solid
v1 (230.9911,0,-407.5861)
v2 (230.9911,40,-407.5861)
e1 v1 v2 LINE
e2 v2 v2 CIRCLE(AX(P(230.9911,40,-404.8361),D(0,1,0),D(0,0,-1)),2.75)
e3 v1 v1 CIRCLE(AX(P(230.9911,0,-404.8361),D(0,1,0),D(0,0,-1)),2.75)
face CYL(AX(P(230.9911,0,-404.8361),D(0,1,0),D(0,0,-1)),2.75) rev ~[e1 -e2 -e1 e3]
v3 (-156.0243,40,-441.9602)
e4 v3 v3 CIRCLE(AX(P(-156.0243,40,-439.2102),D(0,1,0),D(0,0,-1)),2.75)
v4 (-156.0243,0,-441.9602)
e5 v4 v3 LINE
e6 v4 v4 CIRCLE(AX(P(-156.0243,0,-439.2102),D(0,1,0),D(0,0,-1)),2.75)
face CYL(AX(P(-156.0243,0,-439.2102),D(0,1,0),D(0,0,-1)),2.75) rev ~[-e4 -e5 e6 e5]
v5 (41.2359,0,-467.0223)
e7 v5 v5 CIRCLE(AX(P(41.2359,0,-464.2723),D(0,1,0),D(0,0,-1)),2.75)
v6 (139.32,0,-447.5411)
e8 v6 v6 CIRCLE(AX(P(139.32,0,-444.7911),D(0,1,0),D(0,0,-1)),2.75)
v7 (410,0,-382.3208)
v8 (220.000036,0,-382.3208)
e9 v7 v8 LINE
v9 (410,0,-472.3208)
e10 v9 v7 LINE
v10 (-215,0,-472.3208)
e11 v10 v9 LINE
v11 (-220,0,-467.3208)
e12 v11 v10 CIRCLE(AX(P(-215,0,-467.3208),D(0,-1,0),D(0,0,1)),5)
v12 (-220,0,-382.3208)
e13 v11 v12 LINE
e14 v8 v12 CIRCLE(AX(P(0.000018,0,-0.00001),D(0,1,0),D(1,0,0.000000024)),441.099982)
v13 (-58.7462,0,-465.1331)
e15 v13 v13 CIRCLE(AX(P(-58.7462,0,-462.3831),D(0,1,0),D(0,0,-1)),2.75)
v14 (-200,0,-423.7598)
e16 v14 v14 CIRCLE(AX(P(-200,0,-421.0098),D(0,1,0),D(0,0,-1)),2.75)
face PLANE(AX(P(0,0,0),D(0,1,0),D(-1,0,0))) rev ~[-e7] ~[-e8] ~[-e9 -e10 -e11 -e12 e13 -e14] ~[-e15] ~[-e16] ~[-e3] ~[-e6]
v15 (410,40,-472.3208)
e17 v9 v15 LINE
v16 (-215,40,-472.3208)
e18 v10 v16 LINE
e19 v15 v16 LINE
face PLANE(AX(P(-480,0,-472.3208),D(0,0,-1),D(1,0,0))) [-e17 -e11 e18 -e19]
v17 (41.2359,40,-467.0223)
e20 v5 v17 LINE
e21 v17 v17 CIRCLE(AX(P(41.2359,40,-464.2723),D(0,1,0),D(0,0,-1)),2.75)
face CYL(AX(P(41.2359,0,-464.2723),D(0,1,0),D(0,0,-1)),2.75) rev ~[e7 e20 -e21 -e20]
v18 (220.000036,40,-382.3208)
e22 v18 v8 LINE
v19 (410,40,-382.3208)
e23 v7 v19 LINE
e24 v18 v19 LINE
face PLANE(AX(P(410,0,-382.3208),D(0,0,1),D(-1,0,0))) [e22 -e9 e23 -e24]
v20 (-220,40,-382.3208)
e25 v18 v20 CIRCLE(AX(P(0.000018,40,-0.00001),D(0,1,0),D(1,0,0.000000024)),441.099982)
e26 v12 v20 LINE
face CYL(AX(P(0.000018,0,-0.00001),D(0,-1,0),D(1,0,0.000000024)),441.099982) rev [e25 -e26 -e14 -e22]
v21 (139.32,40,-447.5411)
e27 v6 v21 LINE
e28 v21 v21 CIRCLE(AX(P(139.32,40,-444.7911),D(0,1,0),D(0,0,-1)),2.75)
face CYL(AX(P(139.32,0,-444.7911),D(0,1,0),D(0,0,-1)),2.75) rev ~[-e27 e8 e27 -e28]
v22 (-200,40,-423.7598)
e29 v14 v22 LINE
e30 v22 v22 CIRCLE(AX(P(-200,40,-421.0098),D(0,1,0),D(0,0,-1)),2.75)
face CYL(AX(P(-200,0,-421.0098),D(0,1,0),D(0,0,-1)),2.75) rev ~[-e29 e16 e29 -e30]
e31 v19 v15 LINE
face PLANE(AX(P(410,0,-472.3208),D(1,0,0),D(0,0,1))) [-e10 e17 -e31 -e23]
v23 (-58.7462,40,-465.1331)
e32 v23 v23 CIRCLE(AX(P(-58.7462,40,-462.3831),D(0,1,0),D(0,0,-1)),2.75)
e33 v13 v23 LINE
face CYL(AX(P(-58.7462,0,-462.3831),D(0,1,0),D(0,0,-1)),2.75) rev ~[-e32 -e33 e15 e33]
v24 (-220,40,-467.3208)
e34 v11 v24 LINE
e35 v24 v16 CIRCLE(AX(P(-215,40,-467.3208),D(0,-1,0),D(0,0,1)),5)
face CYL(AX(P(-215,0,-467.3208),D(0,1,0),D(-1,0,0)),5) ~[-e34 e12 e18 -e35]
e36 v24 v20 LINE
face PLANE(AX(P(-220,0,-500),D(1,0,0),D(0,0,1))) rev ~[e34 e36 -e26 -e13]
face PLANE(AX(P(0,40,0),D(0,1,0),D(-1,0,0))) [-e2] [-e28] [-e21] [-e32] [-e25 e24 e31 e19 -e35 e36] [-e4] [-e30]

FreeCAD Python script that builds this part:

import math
import FreeCAD as App
import Part
import Sketcher
from FreeCAD import Vector


def edges_at(feature, points):
    """Names of the edges that pass closest to the given points."""
    edges = feature.Shape.Edges
    near = lambda p: min(range(len(edges)), key=lambda i: edges[i].distToShape(Part.Vertex(*p))[0])
    return sorted({f"Edge{near(p) + 1}" for p in points})

doc = App.newDocument("Part")
params = doc.addObject("Spreadsheet::Sheet", "Params")
for row, (alias, value) in enumerate([
    ("sketch1_radius", "441.1 mm"),
    ("sketch1_width", "720 mm"),
    ("sketch1_height", "400 mm"),
    ("pad1_length", "40 mm"),
    ("sketch2_diameter", "5.5 mm"),
    ("hole_diameter", "5.5 mm"),
    ("sketch3_width", "890 mm"),
    ("sketch3_height", "90 mm"),
    ("fillet_radius", "5 mm"),
], start=1):
    params.set(f"A{row}", alias)
    params.set(f"B{row}", "=" + value)
    params.setAlias(f"B{row}", alias)

body = doc.addObject("PartDesign::Body", "Body")

sketch1 = doc.addObject("Sketcher::SketchObject", "Sketch")
body.addObject(sketch1)
sketch1.AttachmentSupport = (doc.XZ_Plane, [""])
sketch1.MapMode = "FlatFace"
sketch1.addGeometry([
    Part.ArcOfCircle(Part.Circle(Vector(0, 0, 0), Vector(0, 0, 1), 441.1), math.radians(-119.917542), math.radians(0)),
    Part.LineSegment(Vector(441.1, 0, 0), Vector(441.1, 400, 0)),
    Part.LineSegment(Vector(441.1, 400, 0), Vector(500, 400, 0)),
    Part.LineSegment(Vector(500, 400, 0), Vector(500, -500, 0)),
    Part.LineSegment(Vector(500, -500, 0), Vector(-220, -500, 0)),
    Part.LineSegment(Vector(-220, -500, 0), Vector(-220, -382.3208, 0)),
], False)
sketch1.addConstraint([
    Sketcher.Constraint("Tangent", 0, 2, 1, 1),
    Sketcher.Constraint("Coincident", 1, 2, 2, 1),
    Sketcher.Constraint("Coincident", 2, 2, 3, 1),
    Sketcher.Constraint("Coincident", 3, 2, 4, 1),
    Sketcher.Constraint("Coincident", 4, 2, 5, 1),
    Sketcher.Constraint("Coincident", 5, 2, 0, 1),
    Sketcher.Constraint("Vertical", 1),
    Sketcher.Constraint("Horizontal", 2),
    Sketcher.Constraint("Vertical", 3),
    Sketcher.Constraint("Horizontal", 4),
    Sketcher.Constraint("Vertical", 5),
    Sketcher.Constraint("Coincident", 0, 3, -1, 1),
    Sketcher.Constraint("Radius", 0, 441.1),
    Sketcher.Constraint("DistanceX", 4, 2, 4, 1, 720.0),
    Sketcher.Constraint("DistanceY", 1, 1, 1, 2, 400.0),
    Sketcher.Constraint("DistanceX", -1, 1, 2, 2, 500.0),
    Sketcher.Constraint("DistanceY", 3, 2, -1, 1, 500.0),
])
sketch1.setExpression("Constraints[12]", "Params.sketch1_radius")
sketch1.setExpression("Constraints[13]", "Params.sketch1_width")
sketch1.setExpression("Constraints[14]", "Params.sketch1_height")
pad1 = doc.addObject("PartDesign::Pad", "Pad")
body.addObject(pad1)
pad1.Profile = sketch1
pad1.setExpression("Length", "Params.pad1_length")
pad1.Reversed = True

sketch2 = doc.addObject("Sketcher::SketchObject", "Sketch001")
body.addObject(sketch2)
sketch2.AttachmentSupport = (doc.XZ_Plane, [""])
sketch2.MapMode = "FlatFace"
sketch2.addGeometry([
    Part.Circle(Vector(-200, -421.0098, 0), Vector(0, 0, 1), 2.75),
    Part.Circle(Vector(-156.0243, -439.2102, 0), Vector(0, 0, 1), 2.75),
    Part.Circle(Vector(-58.7462, -462.3831, 0), Vector(0, 0, 1), 2.75),
    Part.Circle(Vector(41.2359, -464.2723, 0), Vector(0, 0, 1), 2.75),
    Part.Circle(Vector(139.32, -444.7911, 0), Vector(0, 0, 1), 2.75),
    Part.Circle(Vector(230.9911, -404.8361, 0), Vector(0, 0, 1), 2.75),
    Part.Circle(Vector(289.0138, -365.6778, 0), Vector(0, 0, 1), 2.75),
    Part.Circle(Vector(326.5218, -332.615, 0), Vector(0, 0, 1), 2.75),
    Part.Circle(Vector(360.2723, -295.7246, 0), Vector(0, 0, 1), 2.75),
    Part.Circle(Vector(389.8771, -255.4312, 0), Vector(0, 0, 1), 2.75),
    Part.Circle(Vector(423.7332, -194.1633, 0), Vector(0, 0, 1), 2.75),
    Part.Circle(Vector(445.1648, -138.1214, 0), Vector(0, 0, 1), 2.75),
    Part.Circle(Vector(464.3817, -39.9852, 0), Vector(0, 0, 1), 2.75),
    Part.Circle(Vector(466.1, 60, 0), Vector(0, 0, 1), 2.75),
    Part.Circle(Vector(466.1, 160, 0), Vector(0, 0, 1), 2.75),
    Part.Circle(Vector(466.1, 260, 0), Vector(0, 0, 1), 2.75),
    Part.Circle(Vector(466.1, 360, 0), Vector(0, 0, 1), 2.75),
], False)
sketch2.addConstraint([
    Sketcher.Constraint("Equal", 0, 1),
    Sketcher.Constraint("Equal", 1, 2),
    Sketcher.Constraint("Equal", 2, 3),
    Sketcher.Constraint("Equal", 3, 4),
    Sketcher.Constraint("Equal", 4, 5),
    Sketcher.Constraint("Equal", 5, 6),
    Sketcher.Constraint("Equal", 6, 7),
    Sketcher.Constraint("Equal", 7, 8),
    Sketcher.Constraint("Equal", 8, 9),
    Sketcher.Constraint("Equal", 9, 10),
    Sketcher.Constraint("Equal", 10, 11),
    Sketcher.Constraint("Equal", 11, 12),
    Sketcher.Constraint("Equal", 12, 13),
    Sketcher.Constraint("Equal", 13, 14),
    Sketcher.Constraint("Equal", 14, 15),
    Sketcher.Constraint("Equal", 15, 16),
    Sketcher.Constraint("Vertical", 13, 3, 14, 3),
    Sketcher.Constraint("Vertical", 14, 3, 15, 3),
    Sketcher.Constraint("Vertical", 15, 3, 16, 3),
    Sketcher.Constraint("Diameter", 0, 5.5),
    Sketcher.Constraint("DistanceX", 0, 3, -1, 1, 200.0),
    Sketcher.Constraint("DistanceY", -1, 1, 13, 3, 60.0),
    Sketcher.Constraint("DistanceY", -1, 1, 14, 3, 160.0),
    Sketcher.Constraint("DistanceY", -1, 1, 15, 3, 260.0),
    Sketcher.Constraint("DistanceY", -1, 1, 16, 3, 360.0),
    Sketcher.Constraint("DistanceX", -1, 1, 13, 3, 466.1),
    Sketcher.Constraint("DistanceX", -1, 1, 4, 3, 139.32),
    Sketcher.Constraint("DistanceX", 2, 3, 6, 3, 347.76),
    Sketcher.Constraint("DistanceY", 4, 3, 9, 3, 189.36),
    Sketcher.Constraint("DistanceX", 7, 3, 12, 3, 137.86),
    Sketcher.Constraint("DistanceY", 2, 3, -1, 1, 462.383),
    Sketcher.Constraint("DistanceX", -1, 1, 3, 3, 41.236),
    Sketcher.Constraint("DistanceY", 4, 3, -1, 1, 444.791),
    Sketcher.Constraint("DistanceX", -1, 1, 5, 3, 230.991),
    Sketcher.Constraint("DistanceY", 5, 3, -1, 1, 404.836),
    Sketcher.Constraint("DistanceY", 7, 3, -1, 1, 332.615),
    Sketcher.Constraint("DistanceX", -1, 1, 9, 3, 389.877),
    Sketcher.Constraint("DistanceX", 1, 3, 2, 3, 97.278),
    Sketcher.Constraint("DistanceY", 2, 3, 1, 3, 23.173),
    Sketcher.Constraint("DistanceX", 2, 3, 3, 3, 99.982),
    Sketcher.Constraint("DistanceY", 3, 3, 1, 3, 25.062),
    Sketcher.Constraint("DistanceX", 6, 3, 7, 3, 37.508),
    Sketcher.Constraint("DistanceX", 9, 3, 10, 3, 33.856),
    Sketcher.Constraint("DistanceY", 9, 3, 10, 3, 61.268),
    Sketcher.Constraint("DistanceX", 8, 3, 10, 3, 63.461),
    Sketcher.Constraint("DistanceY", 10, 3, 11, 3, 56.042),
    Sketcher.Constraint("DistanceX", 7, 3, 11, 3, 118.643),
    Sketcher.Constraint("DistanceY", 10, 3, 12, 3, 154.178),
    Sketcher.Constraint("DistanceY", 0, 3, -1, 1, 421.0098),
    Sketcher.Constraint("DistanceY", 6, 3, -1, 1, 365.6778),
    Sketcher.Constraint("DistanceY", 8, 3, -1, 1, 295.7246),
])
sketch2.setExpression("Constraints[19]", "Params.sketch2_diameter")
doc.recompute()
hole = doc.addObject("PartDesign::Hole", "Hole")
body.addObject(hole)
hole.Profile = sketch2
hole.ThreadType = "None"
hole.setExpression("Diameter", "Params.hole_diameter")
hole.DepthType = "ThroughAll"

sketch3 = doc.addObject("Sketcher::SketchObject", "Sketch002")
body.addObject(sketch3)
sketch3.AttachmentSupport = (doc.XZ_Plane, [""])
sketch3.MapMode = "FlatFace"
sketch3.addGeometry([
    Part.LineSegment(Vector(927.6453, 629.3425, 0), Vector(-944.7434, 629.3425, 0)),
    Part.LineSegment(Vector(-944.7434, 629.3425, 0), Vector(-944.7434, -768.0218, 0)),
    Part.LineSegment(Vector(-944.7434, -768.0218, 0), Vector(927.6453, -768.0218, 0)),
    Part.LineSegment(Vector(927.6453, -768.0218, 0), Vector(927.6453, 629.3425, 0)),
    Part.LineSegment(Vector(410, -472.3208, 0), Vector(-480, -472.3208, 0)),
    Part.LineSegment(Vector(-480, -472.3208, 0), Vector(-480, -382.3208, 0)),
    Part.LineSegment(Vector(-480, -382.3208, 0), Vector(410, -382.3208, 0)),
    Part.LineSegment(Vector(410, -382.3208, 0), Vector(410, -472.3208, 0)),
], False)
sketch3.addConstraint([
    Sketcher.Constraint("Coincident", 0, 2, 1, 1),
    Sketcher.Constraint("Coincident", 1, 2, 2, 1),
    Sketcher.Constraint("Coincident", 2, 2, 3, 1),
    Sketcher.Constraint("Coincident", 3, 2, 0, 1),
    Sketcher.Constraint("Coincident", 4, 2, 5, 1),
    Sketcher.Constraint("Coincident", 5, 2, 6, 1),
    Sketcher.Constraint("Coincident", 6, 2, 7, 1),
    Sketcher.Constraint("Coincident", 7, 2, 4, 1),
    Sketcher.Constraint("Horizontal", 0),
    Sketcher.Constraint("Vertical", 1),
    Sketcher.Constraint("Horizontal", 2),
    Sketcher.Constraint("Vertical", 3),
    Sketcher.Constraint("Horizontal", 4),
    Sketcher.Constraint("Vertical", 5),
    Sketcher.Constraint("Horizontal", 6),
    Sketcher.Constraint("Vertical", 7),
    Sketcher.Constraint("DistanceX", 4, 2, 4, 1, 890.0),
    Sketcher.Constraint("DistanceY", 5, 1, 5, 2, 90.0),
    Sketcher.Constraint("DistanceX", 4, 2, -1, 1, 480.0),
    Sketcher.Constraint("DistanceX", 0, 2, 0, 1, 1872.3887),
    Sketcher.Constraint("DistanceY", 1, 2, 1, 1, 1397.3643),
    Sketcher.Constraint("DistanceY", 1, 2, 4, 2, 295.701),
    Sketcher.Constraint("DistanceX", 0, 2, -1, 1, 944.7434),
    Sketcher.Constraint("DistanceY", -1, 1, 0, 2, 629.3425),
])
sketch3.setExpression("Constraints[16]", "Params.sketch3_width")
sketch3.setExpression("Constraints[17]", "Params.sketch3_height")
pocket1 = doc.addObject("PartDesign::Pocket", "Pocket")
body.addObject(pocket1)
pocket1.Profile = sketch3
pocket1.Type = "ThroughAll"
doc.recompute()

fillet = doc.addObject("PartDesign::Fillet", "Fillet")
body.addObject(fillet)
fillet.Base = (pocket1, edges_at(pocket1, [(-220, 20, -472.321)]))
fillet.setExpression("Radius", "Params.fillet_radius")

doc.recompute()
